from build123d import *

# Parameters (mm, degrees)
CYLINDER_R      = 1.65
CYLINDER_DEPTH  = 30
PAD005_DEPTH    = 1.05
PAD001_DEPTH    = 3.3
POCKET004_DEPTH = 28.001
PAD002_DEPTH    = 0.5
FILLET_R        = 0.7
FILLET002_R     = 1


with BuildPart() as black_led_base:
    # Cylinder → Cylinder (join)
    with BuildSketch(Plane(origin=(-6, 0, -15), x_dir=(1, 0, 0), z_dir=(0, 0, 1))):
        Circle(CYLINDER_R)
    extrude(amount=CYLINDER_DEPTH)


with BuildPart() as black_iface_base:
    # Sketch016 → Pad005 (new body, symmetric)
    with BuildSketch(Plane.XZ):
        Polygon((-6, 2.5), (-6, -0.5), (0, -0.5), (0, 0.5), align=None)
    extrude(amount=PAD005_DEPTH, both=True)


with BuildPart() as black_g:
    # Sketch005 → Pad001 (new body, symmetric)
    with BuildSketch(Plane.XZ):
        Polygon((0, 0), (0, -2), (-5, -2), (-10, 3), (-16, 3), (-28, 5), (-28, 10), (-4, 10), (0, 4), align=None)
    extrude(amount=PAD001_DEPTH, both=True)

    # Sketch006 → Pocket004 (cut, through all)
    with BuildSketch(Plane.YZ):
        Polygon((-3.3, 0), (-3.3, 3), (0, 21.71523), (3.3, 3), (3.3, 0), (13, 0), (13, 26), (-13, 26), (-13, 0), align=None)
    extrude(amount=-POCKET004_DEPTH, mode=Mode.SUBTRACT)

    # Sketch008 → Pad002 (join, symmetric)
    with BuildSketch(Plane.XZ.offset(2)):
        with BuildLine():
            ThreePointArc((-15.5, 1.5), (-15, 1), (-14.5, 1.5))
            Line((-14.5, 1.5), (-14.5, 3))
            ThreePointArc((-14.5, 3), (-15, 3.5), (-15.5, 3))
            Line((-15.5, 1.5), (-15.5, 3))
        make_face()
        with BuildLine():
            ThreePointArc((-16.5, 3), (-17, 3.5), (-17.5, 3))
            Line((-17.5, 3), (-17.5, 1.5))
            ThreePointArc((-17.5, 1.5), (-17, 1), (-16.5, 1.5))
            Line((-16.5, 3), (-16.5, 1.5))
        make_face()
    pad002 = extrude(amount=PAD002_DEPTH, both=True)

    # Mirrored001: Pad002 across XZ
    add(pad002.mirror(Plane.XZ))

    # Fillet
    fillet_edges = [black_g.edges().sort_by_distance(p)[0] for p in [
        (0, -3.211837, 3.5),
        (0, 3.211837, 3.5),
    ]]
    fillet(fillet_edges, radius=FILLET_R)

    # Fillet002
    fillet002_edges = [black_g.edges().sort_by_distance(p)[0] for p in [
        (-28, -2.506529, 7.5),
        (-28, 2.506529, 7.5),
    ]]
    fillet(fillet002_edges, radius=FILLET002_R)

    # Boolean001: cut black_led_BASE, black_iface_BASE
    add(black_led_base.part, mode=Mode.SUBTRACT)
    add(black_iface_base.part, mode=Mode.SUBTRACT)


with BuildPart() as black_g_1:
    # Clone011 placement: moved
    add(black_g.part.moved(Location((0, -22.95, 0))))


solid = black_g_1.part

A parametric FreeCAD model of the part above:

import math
import FreeCAD as App
import Part
import Sketcher
Q = App.Units.Quantity


def edges_at(feature, points):
    """Names of the edges that pass closest to the given points."""
    edges = feature.Shape.Edges
    near = lambda p: min(range(len(edges)), key=lambda i: edges[i].distToShape(Part.Vertex(*p))[0])
    return sorted({f"Edge{near(p) + 1}" for p in points})

doc = App.newDocument("Part")
body = doc.addObject("PartDesign::Body", "Body")

# Sketch on XY plane
sketch1 = body.newObject("Sketcher::SketchObject", "Sketch")
sketch1.AttachmentSupport = (doc.getObject("XY_Plane"), [""])
sketch1.MapMode = "FlatFace"
sketch1.AttachmentOffset = App.Placement(App.Vector(0, 0, -15), App.Rotation())
sketch1.addGeometry(Part.Circle(App.Vector(-6, 0, 0), App.Vector(0, 0, 1), 1.65), False)
sketch1.addConstraint([
    Sketcher.Constraint("PointOnObject", 0, 3, -1),
    Sketcher.Constraint("Diameter", 0, Q("3.3 mm")),
    Sketcher.Constraint("DistanceX", 0, 3, -1, 1, Q("6 mm")),
])
pad1 = body.newObject("PartDesign::Pad", "Pad")
pad1.Profile = sketch1
pad1.Length = 30
body2 = doc.addObject("PartDesign::Body", "Body001")

# Sketch on XZ plane
sketch2 = body2.newObject("Sketcher::SketchObject", "Sketch001")
sketch2.AttachmentSupport = (doc.getObject("XZ_Plane001"), [""])
sketch2.MapMode = "FlatFace"
sketch2.addGeometry([
    Part.LineSegment(App.Vector(-6, 2.5, 0), App.Vector(-6, -0.5, 0)),
    Part.LineSegment(App.Vector(-6, -0.5, 0), App.Vector(0, -0.5, 0)),
    Part.LineSegment(App.Vector(0, -0.5, 0), App.Vector(0, 0.5, 0)),
    Part.LineSegment(App.Vector(0, 0.5, 0), App.Vector(-6, 2.5, 0)),
], False)
sketch2.addConstraint([
    Sketcher.Constraint("Coincident", 0, 2, 1, 1),
    Sketcher.Constraint("Coincident", 1, 2, 2, 1),
    Sketcher.Constraint("Coincident", 2, 2, 3, 1),
    Sketcher.Constraint("Coincident", 3, 2, 0, 1),
    Sketcher.Constraint("Vertical", 0),
    Sketcher.Constraint("Horizontal", 1),
    Sketcher.Constraint("Vertical", 2),
    Sketcher.Constraint("Symmetric", 1, 2, 2, 2, -1, 1),
    Sketcher.Constraint("DistanceX", 1, 1, 1, 2, Q("6 mm")),
    Sketcher.Constraint("DistanceY", 0, 2, 0, 1, Q("3 mm")),
    Sketcher.Constraint("DistanceY", 2, 1, 2, 2, Q("1 mm")),
])
pad2 = body2.newObject("PartDesign::Pad", "Pad001")
pad2.Profile = sketch2
pad2.Length = 2.1
pad2.Midplane = True
body3 = doc.addObject("PartDesign::Body", "Body002")

# Sketch on XZ plane
sketch3 = body3.newObject("Sketcher::SketchObject", "Sketch002")
sketch3.AttachmentSupport = (doc.getObject("XZ_Plane002"), [""])
sketch3.MapMode = "FlatFace"
sketch3.addGeometry([
    Part.LineSegment(App.Vector(0, -2, 0), App.Vector(0, 4, 0)),  # 0
    Part.LineSegment(App.Vector(0, 4, 0), App.Vector(-4, 10, 0)),  # 1
    Part.LineSegment(App.Vector(-4, 10, 0), App.Vector(-28, 10, 0)),  # 2
    Part.LineSegment(App.Vector(-28, 10, 0), App.Vector(-28, 5, 0)),  # 3
    Part.LineSegment(App.Vector(-28, 5, 0), App.Vector(-16, 3, 0)),  # 4
    Part.LineSegment(App.Vector(-16, 3, 0), App.Vector(-10, 3, 0)),  # 5
    Part.LineSegment(App.Vector(-10, 3, 0), App.Vector(-5, -2, 0)),  # 6
    Part.LineSegment(App.Vector(-5, -2, 0), App.Vector(0, -2, 0)),  # 7
], False)
sketch3.addConstraint([
    Sketcher.Constraint("Coincident", 0, 2, 1, 1),
    Sketcher.Constraint("Coincident", 1, 2, 2, 1),
    Sketcher.Constraint("Coincident", 2, 2, 3, 1),
    Sketcher.Constraint("Coincident", 3, 2, 4, 1),
    Sketcher.Constraint("Coincident", 4, 2, 5, 1),
    Sketcher.Constraint("Coincident", 5, 2, 6, 1),
    Sketcher.Constraint("Coincident", 6, 2, 7, 1),
    Sketcher.Constraint("Coincident", 7, 2, 0, 1),
    Sketcher.Constraint("Vertical", 0),
    Sketcher.Constraint("Horizontal", 2),
    Sketcher.Constraint("Vertical", 3),
    Sketcher.Constraint("Horizontal", 5),
    Sketcher.Constraint("Horizontal", 7),
    Sketcher.Constraint("PointOnObject", 0, 2, -2),
    Sketcher.Constraint("Equal", 5, 0),
    Sketcher.Constraint("Equal", 7, 3),
    Sketcher.Constraint("DistanceX", 2, 2, 2, 1, Q("24 mm")),
    Sketcher.Constraint("DistanceX", 5, 1, 5, 2, Q("6 mm")),
    Sketcher.Constraint("DistanceX", 7, 1, 7, 2, Q("5 mm")),
    Sketcher.Constraint("Angle", 6, Q("-45 deg")),
    Sketcher.Constraint("DistanceY", -1, 1, 0, 2, Q("4 mm")),
    Sketcher.Constraint("DistanceX", 1, 2, -1, 1, Q("4 mm")),
    Sketcher.Constraint("DistanceY", -1, 1, 1, 2, Q("10 mm")),
    Sketcher.Constraint("DistanceX", 4, 2, -1, 1, Q("16 mm")),
])
pad3 = body3.newObject("PartDesign::Pad", "Pad002")
pad3.Profile = sketch3
pad3.Length = 6.6
pad3.Midplane = True

# Sketch on YZ plane
sketch4 = body3.newObject("Sketcher::SketchObject", "Sketch003")
sketch4.AttachmentSupport = (doc.getObject("YZ_Plane002"), [""])
sketch4.MapMode = "FlatFace"
sketch4.addGeometry([
    Part.LineSegment(App.Vector(-3.3, 0, 0), App.Vector(-3.3, 3, 0)),  # 0
    Part.LineSegment(App.Vector(-3.3, 3, 0), App.Vector(0, 21.71523, 0)),  # 1
    Part.LineSegment(App.Vector(0, 21.71523, 0), App.Vector(3.3, 3, 0)),  # 2
    Part.LineSegment(App.Vector(3.3, 3, 0), App.Vector(3.3, 0, 0)),  # 3
    Part.LineSegment(App.Vector(3.3, 0, 0), App.Vector(13, 0, 0)),  # 4
    Part.LineSegment(App.Vector(13, 0, 0), App.Vector(13, 26, 0)),  # 5
    Part.LineSegment(App.Vector(13, 26, 0), App.Vector(-13, 26, 0)),  # 6
    Part.LineSegment(App.Vector(-13, 26, 0), App.Vector(-13, 0, 0)),  # 7
    Part.LineSegment(App.Vector(-13, 0, 0), App.Vector(-3.3, 0, 0)),  # 8
], False)
sketch4.addConstraint([
    Sketcher.Constraint("Coincident", 0, 2, 1, 1),
    Sketcher.Constraint("Coincident", 1, 2, 2, 1),
    Sketcher.Constraint("Coincident", 2, 2, 3, 1),
    Sketcher.Constraint("Coincident", 3, 2, 4, 1),
    Sketcher.Constraint("Coincident", 4, 2, 5, 1),
    Sketcher.Constraint("Coincident", 5, 2, 6, 1),
    Sketcher.Constraint("Coincident", 6, 2, 7, 1),
    Sketcher.Constraint("Coincident", 7, 2, 8, 1),
    Sketcher.Constraint("Coincident", 8, 2, 0, 1),
    Sketcher.Constraint("Vertical", 0),
    Sketcher.Constraint("Vertical", 3),
    Sketcher.Constraint("Horizontal", 4),
    Sketcher.Constraint("Vertical", 5),
    Sketcher.Constraint("Horizontal", 6),
    Sketcher.Constraint("Vertical", 7),
    Sketcher.Constraint("Horizontal", 8),
    Sketcher.Constraint("Symmetric", 4, 2, 7, 2, -1, 1),
    Sketcher.Constraint("Symmetric", 0, 2, 2, 2, -2),
    Sketcher.Constraint("PointOnObject", 1, 2, -2),
    Sketcher.Constraint("PointOnObject", 3, 2, -1),
    Sketcher.Constraint("Equal", 6, 5),
    Sketcher.Constraint("DistanceX", 6, 2, 6, 1, Q("26 mm")),
    Sketcher.Constraint("DistanceY", 0, 1, 0, 2, Q("3 mm")),
    Sketcher.Constraint("Angle", 1, Q("80 deg")),
    Sketcher.Constraint("DistanceX", 4, 1, 4, 2, Q("9.7 mm")),
])
pocket1 = body3.newObject("PartDesign::Pocket", "Pocket")
pocket1.Profile = sketch4
pocket1.Type = "ThroughAll"

# Sketch on XZ plane
sketch5 = body3.newObject("Sketcher::SketchObject", "Sketch004")
sketch5.AttachmentSupport = (doc.getObject("XZ_Plane002"), [""])
sketch5.MapMode = "FlatFace"
sketch5.AttachmentOffset = App.Placement(App.Vector(0, 0, 2), App.Rotation())
sketch5.addGeometry([
    Part.ArcOfCircle(Part.Circle(App.Vector(-15, 1.5, 0), App.Vector(0, 0, 1), 0.5), math.radians(180), math.radians(360)),  # 0
    Part.LineSegment(App.Vector(-14.5, 1.5, 0), App.Vector(-14.5, 3, 0)),  # 1
    Part.ArcOfCircle(Part.Circle(App.Vector(-15, 3, 0), App.Vector(0, 0, 1), 0.5), math.radians(0), math.radians(180)),  # 2
    Part.LineSegment(App.Vector(-15.5, 3, 0), App.Vector(-15.5, 1.5, 0)),  # 3
    Part.ArcOfCircle(Part.Circle(App.Vector(-17, 3, 0), App.Vector(0, 0, 1), 0.5), math.radians(0), math.radians(180)),  # 4
    Part.LineSegment(App.Vector(-17.5, 3, 0), App.Vector(-17.5, 1.5, 0)),  # 5
    Part.ArcOfCircle(Part.Circle(App.Vector(-17, 1.5, 0), App.Vector(0, 0, 1), 0.5), math.radians(180), math.radians(360)),  # 6
    Part.LineSegment(App.Vector(-16.5, 1.5, 0), App.Vector(-16.5, 3, 0)),  # 7
], False)
sketch5.addConstraint([
    Sketcher.Constraint("Tangent", 0, 2, 1, 1),
    Sketcher.Constraint("Tangent", 1, 2, 2, 1),
    Sketcher.Constraint("Tangent", 2, 2, 3, 1),
    Sketcher.Constraint("Tangent", 3, 2, 0, 1),
    Sketcher.Constraint("Tangent", 4, 2, 5, 1),
    Sketcher.Constraint("Tangent", 5, 2, 6, 1),
    Sketcher.Constraint("Tangent", 6, 2, 7, 1),
    Sketcher.Constraint("Tangent", 7, 2, 4, 1),
    Sketcher.Constraint("Vertical", 1),
    Sketcher.Constraint("Vertical", 3),
    Sketcher.Constraint("Vertical", 5),
    Sketcher.Constraint("Vertical", 7),
    Sketcher.Constraint("Equal", 2, 4),
    Sketcher.Constraint("Horizontal", 2, 3, 4, 3),
    Sketcher.Constraint("Horizontal", 0, 3, 6, 3),
    Sketcher.Constraint("Radius", 0, Q("0.5 mm")),
    Sketcher.Constraint("DistanceY", 1, 1, 1, 2, Q("1.5 mm")),
    Sketcher.Constraint("DistanceX", 0, 3, -1, 1, Q("15 mm")),
    Sketcher.Constraint("DistanceY", -1, 1, 2, 3, Q("3 mm")),
    Sketcher.Constraint("DistanceX", 4, 3, -1, 1, Q("17 mm")),
])
pad4 = body3.newObject("PartDesign::Pad", "Pad003")
pad4.Profile = sketch5
pad4.Length = 1
pad4.Midplane = True
doc.recompute()

mirrored = body3.newObject("PartDesign::Mirrored", "Mirrored")
mirrored.Originals = [pad4]
mirrored.MirrorPlane = (doc.getObject("XZ_Plane002"), [""])
body3.Tip = mirrored
doc.recompute()

fillet = body3.newObject("PartDesign::Fillet", "Fillet")
fillet.Base = (mirrored, edges_at(mirrored, [(0, -3.212, 3.5), (0, 3.212, 3.5)]))
fillet.Radius = 0.7
doc.recompute()

fillet2 = body3.newObject("PartDesign::Fillet", "Fillet001")
fillet2.Base = (fillet, edges_at(fillet, [(-28, -2.507, 7.5), (-28, 2.507, 7.5)]))
fillet2.Radius = 1
doc.recompute()

boolean = body3.newObject("PartDesign::Boolean", "Boolean")
boolean.Type = "Cut"
boolean.addObjects([body])
doc.recompute()

boolean2 = body3.newObject("PartDesign::Boolean", "Boolean001")
boolean2.Type = "Cut"
boolean2.addObjects([body2])
body4 = doc.addObject("PartDesign::Body", "Body003")
doc.recompute()

body3.Placement = App.Placement(App.Vector(0, -22.95, 0), App.Rotation(App.Vector(0, 0, 1), 0))
boolean3 = body4.newObject("PartDesign::Boolean", "Boolean002")
boolean3.Type = "Fuse"
boolean3.addObjects([body3])

doc.recompute()
